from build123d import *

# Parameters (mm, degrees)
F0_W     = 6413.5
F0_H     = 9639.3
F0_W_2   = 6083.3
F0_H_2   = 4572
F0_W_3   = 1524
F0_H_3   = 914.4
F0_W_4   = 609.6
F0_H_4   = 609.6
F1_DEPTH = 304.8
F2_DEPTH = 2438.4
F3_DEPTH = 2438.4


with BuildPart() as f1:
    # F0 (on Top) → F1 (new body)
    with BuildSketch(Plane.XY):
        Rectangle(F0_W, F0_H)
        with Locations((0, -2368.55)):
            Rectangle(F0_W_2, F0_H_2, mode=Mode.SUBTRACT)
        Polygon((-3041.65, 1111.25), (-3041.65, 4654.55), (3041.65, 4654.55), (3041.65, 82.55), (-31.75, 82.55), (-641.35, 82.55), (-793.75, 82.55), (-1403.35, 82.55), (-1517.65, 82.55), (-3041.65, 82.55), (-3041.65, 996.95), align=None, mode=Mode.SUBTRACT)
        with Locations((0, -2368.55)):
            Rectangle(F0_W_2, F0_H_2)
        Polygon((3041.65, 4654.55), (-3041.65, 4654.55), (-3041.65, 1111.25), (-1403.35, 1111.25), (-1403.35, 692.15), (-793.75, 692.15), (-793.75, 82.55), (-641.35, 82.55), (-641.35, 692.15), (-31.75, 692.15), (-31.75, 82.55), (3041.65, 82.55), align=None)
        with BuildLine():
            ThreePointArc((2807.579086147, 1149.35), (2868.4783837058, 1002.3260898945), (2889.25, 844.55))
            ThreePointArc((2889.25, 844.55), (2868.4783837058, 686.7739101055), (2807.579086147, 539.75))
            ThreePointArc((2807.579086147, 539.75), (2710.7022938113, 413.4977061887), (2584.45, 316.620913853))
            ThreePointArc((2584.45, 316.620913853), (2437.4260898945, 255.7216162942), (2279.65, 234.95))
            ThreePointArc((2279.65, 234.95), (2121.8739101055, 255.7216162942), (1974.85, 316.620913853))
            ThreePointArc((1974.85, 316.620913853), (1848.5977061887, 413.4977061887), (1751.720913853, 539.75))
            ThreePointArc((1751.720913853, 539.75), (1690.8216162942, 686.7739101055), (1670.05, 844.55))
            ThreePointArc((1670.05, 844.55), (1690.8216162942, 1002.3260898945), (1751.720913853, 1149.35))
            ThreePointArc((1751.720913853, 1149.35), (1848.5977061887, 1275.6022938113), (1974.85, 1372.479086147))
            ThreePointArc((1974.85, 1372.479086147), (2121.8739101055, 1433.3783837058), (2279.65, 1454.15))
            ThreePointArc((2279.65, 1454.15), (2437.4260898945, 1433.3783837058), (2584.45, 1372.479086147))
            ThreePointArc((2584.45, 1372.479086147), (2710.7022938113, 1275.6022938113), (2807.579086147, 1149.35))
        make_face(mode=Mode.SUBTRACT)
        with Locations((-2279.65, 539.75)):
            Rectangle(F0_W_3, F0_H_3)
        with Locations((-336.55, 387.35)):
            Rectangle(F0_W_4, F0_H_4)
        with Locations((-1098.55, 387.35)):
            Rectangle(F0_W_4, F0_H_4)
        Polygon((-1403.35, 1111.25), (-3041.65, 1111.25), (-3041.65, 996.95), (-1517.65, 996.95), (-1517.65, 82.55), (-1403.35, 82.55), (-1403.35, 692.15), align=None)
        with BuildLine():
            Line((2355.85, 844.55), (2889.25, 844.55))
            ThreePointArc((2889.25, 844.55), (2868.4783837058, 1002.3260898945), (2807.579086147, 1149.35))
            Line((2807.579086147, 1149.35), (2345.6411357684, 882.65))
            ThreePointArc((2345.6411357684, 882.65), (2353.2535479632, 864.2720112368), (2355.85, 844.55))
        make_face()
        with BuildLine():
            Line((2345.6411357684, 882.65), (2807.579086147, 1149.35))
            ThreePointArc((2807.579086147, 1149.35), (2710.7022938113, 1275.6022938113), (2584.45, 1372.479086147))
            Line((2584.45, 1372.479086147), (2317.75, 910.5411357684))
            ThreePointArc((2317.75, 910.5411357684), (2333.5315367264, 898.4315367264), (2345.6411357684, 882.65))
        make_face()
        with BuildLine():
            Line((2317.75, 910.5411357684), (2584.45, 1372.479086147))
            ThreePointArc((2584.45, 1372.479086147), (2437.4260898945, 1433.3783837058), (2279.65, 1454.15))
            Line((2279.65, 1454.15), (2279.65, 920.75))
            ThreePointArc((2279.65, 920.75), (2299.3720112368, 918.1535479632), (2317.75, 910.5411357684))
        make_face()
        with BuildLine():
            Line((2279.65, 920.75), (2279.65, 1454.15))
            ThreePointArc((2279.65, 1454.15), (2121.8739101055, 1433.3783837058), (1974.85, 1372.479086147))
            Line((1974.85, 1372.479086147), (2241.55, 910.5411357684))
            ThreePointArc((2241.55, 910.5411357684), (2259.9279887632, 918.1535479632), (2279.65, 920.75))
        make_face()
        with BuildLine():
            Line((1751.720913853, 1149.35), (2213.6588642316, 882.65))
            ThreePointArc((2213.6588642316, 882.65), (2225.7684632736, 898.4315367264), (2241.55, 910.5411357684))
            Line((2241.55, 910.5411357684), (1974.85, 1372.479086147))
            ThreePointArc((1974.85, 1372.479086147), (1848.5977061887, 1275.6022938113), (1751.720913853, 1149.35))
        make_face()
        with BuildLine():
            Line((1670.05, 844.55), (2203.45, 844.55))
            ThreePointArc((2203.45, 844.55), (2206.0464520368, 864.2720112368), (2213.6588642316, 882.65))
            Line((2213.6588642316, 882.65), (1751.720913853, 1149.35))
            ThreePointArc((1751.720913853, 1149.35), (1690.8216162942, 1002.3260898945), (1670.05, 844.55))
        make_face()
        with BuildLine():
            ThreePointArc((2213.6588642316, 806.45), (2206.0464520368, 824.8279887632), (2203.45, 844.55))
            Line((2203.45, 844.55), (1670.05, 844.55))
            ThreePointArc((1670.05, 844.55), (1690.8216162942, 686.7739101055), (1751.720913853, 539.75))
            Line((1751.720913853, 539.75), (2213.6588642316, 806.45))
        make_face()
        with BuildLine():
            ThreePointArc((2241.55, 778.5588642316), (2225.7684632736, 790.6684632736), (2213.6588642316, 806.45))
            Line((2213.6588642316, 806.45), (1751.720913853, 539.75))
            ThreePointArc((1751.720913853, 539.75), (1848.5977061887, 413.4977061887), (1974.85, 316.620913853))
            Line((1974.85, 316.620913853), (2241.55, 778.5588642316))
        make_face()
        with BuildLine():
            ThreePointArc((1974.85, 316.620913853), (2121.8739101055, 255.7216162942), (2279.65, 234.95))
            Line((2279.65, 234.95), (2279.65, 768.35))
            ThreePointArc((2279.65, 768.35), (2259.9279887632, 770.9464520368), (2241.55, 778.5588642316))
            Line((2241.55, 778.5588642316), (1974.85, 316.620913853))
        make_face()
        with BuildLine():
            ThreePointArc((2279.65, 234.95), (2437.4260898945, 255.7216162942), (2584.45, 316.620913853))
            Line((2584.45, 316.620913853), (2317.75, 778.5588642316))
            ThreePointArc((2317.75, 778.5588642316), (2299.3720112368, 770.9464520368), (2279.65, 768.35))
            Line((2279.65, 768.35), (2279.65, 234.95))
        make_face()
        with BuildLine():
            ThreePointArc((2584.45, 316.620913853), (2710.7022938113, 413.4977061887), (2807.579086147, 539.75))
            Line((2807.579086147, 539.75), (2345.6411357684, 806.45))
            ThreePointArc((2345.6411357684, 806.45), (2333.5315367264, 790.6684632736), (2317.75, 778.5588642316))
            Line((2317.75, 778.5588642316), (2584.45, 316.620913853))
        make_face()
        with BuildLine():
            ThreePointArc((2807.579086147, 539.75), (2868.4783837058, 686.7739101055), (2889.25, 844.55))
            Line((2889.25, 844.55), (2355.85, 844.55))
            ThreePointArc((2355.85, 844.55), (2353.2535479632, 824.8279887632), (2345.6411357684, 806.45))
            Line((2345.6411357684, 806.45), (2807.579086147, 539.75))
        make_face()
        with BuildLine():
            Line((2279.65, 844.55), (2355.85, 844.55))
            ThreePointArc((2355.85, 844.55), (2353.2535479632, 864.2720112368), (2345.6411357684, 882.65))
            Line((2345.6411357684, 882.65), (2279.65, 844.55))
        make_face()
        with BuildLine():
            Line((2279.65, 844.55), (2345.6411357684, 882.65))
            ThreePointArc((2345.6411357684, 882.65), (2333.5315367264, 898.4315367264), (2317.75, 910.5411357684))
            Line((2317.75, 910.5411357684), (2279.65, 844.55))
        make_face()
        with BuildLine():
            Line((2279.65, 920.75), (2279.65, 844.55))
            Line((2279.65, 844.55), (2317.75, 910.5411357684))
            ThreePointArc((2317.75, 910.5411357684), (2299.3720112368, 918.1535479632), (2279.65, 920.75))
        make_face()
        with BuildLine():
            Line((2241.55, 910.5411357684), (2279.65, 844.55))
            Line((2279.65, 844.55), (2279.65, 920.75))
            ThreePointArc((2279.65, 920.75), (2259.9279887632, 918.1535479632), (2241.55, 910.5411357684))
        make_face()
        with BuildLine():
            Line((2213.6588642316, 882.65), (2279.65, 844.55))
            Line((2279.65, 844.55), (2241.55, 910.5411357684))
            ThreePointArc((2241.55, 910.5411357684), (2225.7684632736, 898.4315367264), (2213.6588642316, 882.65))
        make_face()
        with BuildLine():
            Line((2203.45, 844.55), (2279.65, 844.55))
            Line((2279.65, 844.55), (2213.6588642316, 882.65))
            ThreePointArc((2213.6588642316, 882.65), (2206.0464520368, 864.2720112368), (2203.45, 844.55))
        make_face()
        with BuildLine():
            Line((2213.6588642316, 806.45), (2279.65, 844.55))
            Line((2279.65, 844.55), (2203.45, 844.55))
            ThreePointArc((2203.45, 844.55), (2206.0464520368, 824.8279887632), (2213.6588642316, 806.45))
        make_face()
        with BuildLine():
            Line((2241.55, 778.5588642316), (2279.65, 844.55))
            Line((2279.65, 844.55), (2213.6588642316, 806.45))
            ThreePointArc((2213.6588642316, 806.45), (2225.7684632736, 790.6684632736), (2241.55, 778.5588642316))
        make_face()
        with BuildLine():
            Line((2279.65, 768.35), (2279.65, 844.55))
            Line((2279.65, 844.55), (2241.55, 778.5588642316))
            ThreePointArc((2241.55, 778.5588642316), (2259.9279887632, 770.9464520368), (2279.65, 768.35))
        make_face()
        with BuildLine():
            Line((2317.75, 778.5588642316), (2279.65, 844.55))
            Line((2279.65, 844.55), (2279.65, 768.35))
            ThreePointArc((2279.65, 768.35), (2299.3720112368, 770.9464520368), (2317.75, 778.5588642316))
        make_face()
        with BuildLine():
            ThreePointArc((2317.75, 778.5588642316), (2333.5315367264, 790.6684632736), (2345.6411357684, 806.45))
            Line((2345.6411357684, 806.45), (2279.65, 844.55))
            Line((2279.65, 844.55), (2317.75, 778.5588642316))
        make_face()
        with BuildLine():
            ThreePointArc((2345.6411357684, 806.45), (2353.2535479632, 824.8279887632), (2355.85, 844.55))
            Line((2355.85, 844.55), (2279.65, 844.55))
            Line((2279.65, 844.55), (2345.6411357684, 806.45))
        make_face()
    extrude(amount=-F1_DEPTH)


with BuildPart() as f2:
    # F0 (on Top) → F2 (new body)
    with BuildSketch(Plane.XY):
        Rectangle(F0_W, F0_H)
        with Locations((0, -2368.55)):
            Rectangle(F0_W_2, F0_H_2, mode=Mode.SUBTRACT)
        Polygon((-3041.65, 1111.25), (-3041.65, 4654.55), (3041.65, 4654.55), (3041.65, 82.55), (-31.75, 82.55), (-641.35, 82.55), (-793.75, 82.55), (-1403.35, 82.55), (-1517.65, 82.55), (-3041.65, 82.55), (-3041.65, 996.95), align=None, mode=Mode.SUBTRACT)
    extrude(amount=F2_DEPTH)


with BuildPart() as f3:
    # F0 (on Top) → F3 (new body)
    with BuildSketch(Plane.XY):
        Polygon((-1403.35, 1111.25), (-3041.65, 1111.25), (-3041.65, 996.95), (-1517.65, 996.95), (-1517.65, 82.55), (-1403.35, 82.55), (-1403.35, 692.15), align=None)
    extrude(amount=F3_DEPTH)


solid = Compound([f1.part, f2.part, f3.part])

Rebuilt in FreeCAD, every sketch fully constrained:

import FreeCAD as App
import Part
import Sketcher
from FreeCAD import Vector
Q = App.Units.Quantity

doc = App.newDocument("Part")
body = doc.addObject("PartDesign::Body", "Body")

# Sketch on XY plane
sketch1 = body.newObject("Sketcher::SketchObject", "Sketch")
sketch1.AttachmentSupport = (doc.getObject("XY_Plane"), [""])
sketch1.MapMode = "FlatFace"
sketch1.addGeometry([
    Part.LineSegment(Vector(-3207, 4820, 0), Vector(-3207, -4820, 0)),
    Part.LineSegment(Vector(-3207, -4820, 0), Vector(3207, -4820, 0)),
    Part.LineSegment(Vector(3207, -4820, 0), Vector(3207, 4820, 0)),
    Part.LineSegment(Vector(3207, 4820, 0), Vector(-3207, 4820, 0)),
], False)
sketch1.addConstraint([
    Sketcher.Constraint("Coincident", 0, 2, 1, 1),
    Sketcher.Constraint("Coincident", 1, 2, 2, 1),
    Sketcher.Constraint("Coincident", 2, 2, 3, 1),
    Sketcher.Constraint("Coincident", 3, 2, 0, 1),
    Sketcher.Constraint("Vertical", 0),
    Sketcher.Constraint("Horizontal", 1),
    Sketcher.Constraint("Vertical", 2),
    Sketcher.Constraint("Horizontal", 3),
    Sketcher.Constraint("Symmetric", 0, 2, 2, 2, -1, 1),
    Sketcher.Constraint("DistanceX", 1, 1, 1, 2, Q("252.5 in")),
    Sketcher.Constraint("DistanceY", 0, 2, 0, 1, Q("379.5 in")),
])
pad1 = body.newObject("PartDesign::Pad", "Pad")
pad1.Profile = sketch1
pad1.Length = Q("12 in")
pad1.Reversed = True
body2 = doc.addObject("PartDesign::Body", "Body001")

# Sketch on XY plane
sketch2 = body2.newObject("Sketcher::SketchObject", "Sketch001")
sketch2.AttachmentSupport = (doc.getObject("XY_Plane001"), [""])
sketch2.MapMode = "FlatFace"
sketch2.addGeometry([
    Part.LineSegment(Vector(-3207, 4820, 0), Vector(-3207, -4820, 0)),  # 0
    Part.LineSegment(Vector(-3207, -4820, 0), Vector(3207, -4820, 0)),  # 1
    Part.LineSegment(Vector(3207, -4820, 0), Vector(3207, 4820, 0)),  # 2
    Part.LineSegment(Vector(3207, 4820, 0), Vector(-3207, 4820, 0)),  # 3
    Part.LineSegment(Vector(3042, -4655, 0), Vector(-3042, -4655, 0)),  # 4
    Part.LineSegment(Vector(-3042, -4655, 0), Vector(-3042, -83, 0)),  # 5
    Part.LineSegment(Vector(-3042, -83, 0), Vector(3042, -83, 0)),  # 6
    Part.LineSegment(Vector(3042, -83, 0), Vector(3042, -4655, 0)),  # 7
    Part.LineSegment(Vector(-3042, 83, 0), Vector(-3042, 4655, 0)),  # 8
    Part.LineSegment(Vector(-3042, 4655, 0), Vector(3042, 4655, 0)),  # 9
    Part.LineSegment(Vector(3042, 4655, 0), Vector(3042, 83, 0)),  # 10
    Part.LineSegment(Vector(3042, 83, 0), Vector(-3042, 83, 0)),  # 11
], False)
sketch2.addConstraint([
    Sketcher.Constraint("Coincident", 0, 2, 1, 1),
    Sketcher.Constraint("Coincident", 1, 2, 2, 1),
    Sketcher.Constraint("Coincident", 2, 2, 3, 1),
    Sketcher.Constraint("Coincident", 3, 2, 0, 1),
    Sketcher.Constraint("Coincident", 4, 2, 5, 1),
    Sketcher.Constraint("Coincident", 5, 2, 6, 1),
    Sketcher.Constraint("Coincident", 6, 2, 7, 1),
    Sketcher.Constraint("Coincident", 7, 2, 4, 1),
    Sketcher.Constraint("Coincident", 8, 2, 9, 1),
    Sketcher.Constraint("Coincident", 9, 2, 10, 1),
    Sketcher.Constraint("Coincident", 10, 2, 11, 1),
    Sketcher.Constraint("Coincident", 11, 2, 8, 1),
    Sketcher.Constraint("Vertical", 0),
    Sketcher.Constraint("Horizontal", 1),
    Sketcher.Constraint("Vertical", 2),
    Sketcher.Constraint("Horizontal", 3),
    Sketcher.Constraint("Horizontal", 4),
    Sketcher.Constraint("Vertical", 5),
    Sketcher.Constraint("Horizontal", 6),
    Sketcher.Constraint("Vertical", 7),
    Sketcher.Constraint("Vertical", 8),
    Sketcher.Constraint("Horizontal", 9),
    Sketcher.Constraint("Vertical", 10),
    Sketcher.Constraint("Horizontal", 11),
    Sketcher.Constraint("Symmetric", 0, 2, 2, 2, -1, 1),
    Sketcher.Constraint("Symmetric", 7, 2, 8, 2, -1, 1),
    Sketcher.Constraint("Symmetric", 5, 2, 10, 2, -1, 1),
    Sketcher.Constraint("Vertical", 5, 2, 8, 2),
    Sketcher.Constraint("DistanceY", 5, 1, 5, 2, Q("180 in")),
    Sketcher.Constraint("DistanceX", 1, 1, 1, 2, Q("252.5 in")),
    Sketcher.Constraint("DistanceX", 4, 2, 4, 1, Q("239.5 in")),
    Sketcher.Constraint("DistanceY", 0, 2, 0, 1, Q("379.5 in")),
    Sketcher.Constraint("DistanceY", 4, 2, 3, 2, Q("373 in")),
])
pad2 = body2.newObject("PartDesign::Pad", "Pad001")
pad2.Profile = sketch2
pad2.Length = Q("96 in")
body3 = doc.addObject("PartDesign::Body", "Body002")

# Sketch on XY plane
sketch3 = body3.newObject("Sketcher::SketchObject", "Sketch002")
sketch3.AttachmentSupport = (doc.getObject("XY_Plane002"), [""])
sketch3.MapMode = "FlatFace"
sketch3.addGeometry([
    Part.LineSegment(Vector(-1403, 1111, 0), Vector(-3042, 1111, 0)),  # 0
    Part.LineSegment(Vector(-3042, 1111, 0), Vector(-3042, 997, 0)),  # 1
    Part.LineSegment(Vector(-3042, 997, 0), Vector(-1518, 997, 0)),  # 2
    Part.LineSegment(Vector(-1518, 997, 0), Vector(-1518, 83, 0)),  # 3
    Part.LineSegment(Vector(-1518, 83, 0), Vector(-1403, 83, 0)),  # 4
    Part.LineSegment(Vector(-1403, 83, 0), Vector(-1403, 1111, 0)),  # 5
], False)
sketch3.addConstraint([
    Sketcher.Constraint("Coincident", 0, 2, 1, 1),
    Sketcher.Constraint("Coincident", 1, 2, 2, 1),
    Sketcher.Constraint("Coincident", 2, 2, 3, 1),
    Sketcher.Constraint("Coincident", 3, 2, 4, 1),
    Sketcher.Constraint("Coincident", 4, 2, 5, 1),
    Sketcher.Constraint("Coincident", 5, 2, 0, 1),
    Sketcher.Constraint("Horizontal", 0),
    Sketcher.Constraint("Vertical", 1),
    Sketcher.Constraint("Horizontal", 2),
    Sketcher.Constraint("Vertical", 3),
    Sketcher.Constraint("Horizontal", 4),
    Sketcher.Constraint("Vertical", 5),
    Sketcher.Constraint("Equal", 4, 1),
    Sketcher.Constraint("DistanceX", 2, 1, 2, 2, Q("60 in")),
    Sketcher.Constraint("DistanceY", 3, 2, 3, 1, Q("36 in")),
    Sketcher.Constraint("DistanceX", 0, 2, 0, 1, Q("64.5 in")),
    Sketcher.Constraint("DistanceX", 0, 2, -1, 1, Q("119.75 in")),
    Sketcher.Constraint("DistanceY", -1, 1, 0, 2, Q("43.75 in")),
])
pad3 = body3.newObject("PartDesign::Pad", "Pad002")
pad3.Profile = sketch3
pad3.Length = Q("96 in")

doc.recompute()
